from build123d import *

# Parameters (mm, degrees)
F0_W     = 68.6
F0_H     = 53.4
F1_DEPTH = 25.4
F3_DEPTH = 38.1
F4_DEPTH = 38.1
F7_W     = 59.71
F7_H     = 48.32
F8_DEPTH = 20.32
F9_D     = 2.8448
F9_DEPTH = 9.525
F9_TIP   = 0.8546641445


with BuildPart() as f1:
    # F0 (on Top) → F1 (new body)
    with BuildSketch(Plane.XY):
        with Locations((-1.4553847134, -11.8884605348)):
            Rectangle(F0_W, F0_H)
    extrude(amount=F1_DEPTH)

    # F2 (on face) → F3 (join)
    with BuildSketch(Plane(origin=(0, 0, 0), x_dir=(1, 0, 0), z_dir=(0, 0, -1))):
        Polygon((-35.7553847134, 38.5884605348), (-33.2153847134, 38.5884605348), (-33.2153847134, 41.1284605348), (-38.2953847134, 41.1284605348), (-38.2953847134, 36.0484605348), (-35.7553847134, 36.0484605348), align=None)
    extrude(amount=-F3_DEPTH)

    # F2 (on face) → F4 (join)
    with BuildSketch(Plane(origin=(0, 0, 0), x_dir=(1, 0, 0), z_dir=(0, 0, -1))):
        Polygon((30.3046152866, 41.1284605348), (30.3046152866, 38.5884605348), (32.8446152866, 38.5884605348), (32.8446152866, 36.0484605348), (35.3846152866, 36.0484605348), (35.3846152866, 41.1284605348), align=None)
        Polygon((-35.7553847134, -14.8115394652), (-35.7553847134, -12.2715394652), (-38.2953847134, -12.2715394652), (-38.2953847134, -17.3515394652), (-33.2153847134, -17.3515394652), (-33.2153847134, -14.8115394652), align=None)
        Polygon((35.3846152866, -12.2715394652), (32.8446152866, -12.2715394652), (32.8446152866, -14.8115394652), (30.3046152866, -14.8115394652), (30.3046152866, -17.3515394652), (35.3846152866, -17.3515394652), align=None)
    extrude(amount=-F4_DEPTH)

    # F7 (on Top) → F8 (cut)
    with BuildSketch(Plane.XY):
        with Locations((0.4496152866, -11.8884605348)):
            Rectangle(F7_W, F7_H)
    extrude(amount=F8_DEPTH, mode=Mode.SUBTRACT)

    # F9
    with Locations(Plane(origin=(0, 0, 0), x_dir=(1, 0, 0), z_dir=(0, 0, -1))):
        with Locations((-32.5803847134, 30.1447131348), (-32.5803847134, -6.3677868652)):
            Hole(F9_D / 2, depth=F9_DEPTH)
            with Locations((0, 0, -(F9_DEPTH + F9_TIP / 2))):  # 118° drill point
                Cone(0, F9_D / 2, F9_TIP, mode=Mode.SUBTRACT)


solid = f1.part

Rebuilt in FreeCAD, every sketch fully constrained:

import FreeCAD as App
import Part
import Sketcher

V = App.Vector
Q = App.Units.Quantity


def add_polygon(sketch, points):
    """Adds a closed chain of lines whose ends are joined by coincident constraints."""
    first, n = sketch.GeometryCount, len(points)
    for a, b in zip(points, points[1:] + points[:1]):
        sketch.addGeometry(Part.LineSegment(App.Vector(*a, 0), App.Vector(*b, 0)), False)
    for i in range(n):
        sketch.addConstraint(Sketcher.Constraint("Coincident", first + i, 2, first + (i + 1) % n, 1))

doc = App.newDocument("Part")
body = doc.addObject("PartDesign::Body", "Body")

sketch1 = body.newObject("Sketcher::SketchObject", "Sketch")
sketch1.AttachmentSupport = (doc.getObject("XY_Plane"), [""])
sketch1.MapMode = "FlatFace"
add_polygon(sketch1, [(-35.755385, 14.811539), (-35.755385, -38.588461), (32.844615, -38.588461), (32.844615, 14.811539)])
sketch1.addConstraint([
    Sketcher.Constraint("Vertical", 0),
    Sketcher.Constraint("Horizontal", 1),
    Sketcher.Constraint("Vertical", 2),
    Sketcher.Constraint("Horizontal", 3),
    Sketcher.Constraint("DistanceX", 1, 1, 1, 2, 68.6),
    Sketcher.Constraint("DistanceY", 0, 2, 0, 1, 53.4),
    Sketcher.Constraint("DistanceY", 0, 2, -1, 1, 38.588461),
    Sketcher.Constraint("DistanceX", 0, 2, -1, 1, 35.755385),
])
pad1 = body.newObject("PartDesign::Pad", "Pad")
pad1.Profile = sketch1
pad1.Length = Q("1 in")

sketch2 = body.newObject("Sketcher::SketchObject", "Sketch001")
sketch2.AttachmentSupport = (doc.getObject("XY_Plane"), [""])
sketch2.MapMode = "FlatFace"
add_polygon(sketch2, [(-35.755385, -38.588461), (-33.215385, -38.588461), (-33.215385, -41.128461), (-38.295385, -41.128461), (-38.295385, -36.048461), (-35.755385, -36.048461)])
sketch2.addConstraint([
    Sketcher.Constraint("Horizontal", 0),
    Sketcher.Constraint("Vertical", 1),
    Sketcher.Constraint("Horizontal", 2),
    Sketcher.Constraint("Vertical", 3),
    Sketcher.Constraint("Horizontal", 4),
    Sketcher.Constraint("Vertical", 5),
    Sketcher.Constraint("Equal", 0, 4),
    Sketcher.Constraint("Equal", 4, 1),
    Sketcher.Constraint("Equal", 2, 3),
    Sketcher.Constraint("DistanceX", 0, 1, 0, 2, Q("0.1 in")),
    Sketcher.Constraint("DistanceY", 0, 2, -1, 1, 38.588461),
    Sketcher.Constraint("DistanceX", 0, 2, -1, 1, 33.215385),
])
pad2 = body.newObject("PartDesign::Pad", "Pad001")
pad2.Profile = sketch2
pad2.Length = Q("1.5 in")

sketch3 = body.newObject("Sketcher::SketchObject", "Sketch002")
sketch3.AttachmentSupport = (doc.getObject("XY_Plane"), [""])
sketch3.MapMode = "FlatFace"
add_polygon(sketch3, [(30.304615, -41.128461), (30.304615, -38.588461), (32.844615, -38.588461), (32.844615, -36.048461), (35.384615, -36.048461), (35.384615, -41.128461)])
add_polygon(sketch3, [(-35.755385, 14.811539), (-35.755385, 12.271539), (-38.295385, 12.271539), (-38.295385, 17.351539), (-33.215385, 17.351539), (-33.215385, 14.811539)])
add_polygon(sketch3, [(35.384615, 12.271539), (32.844615, 12.271539), (32.844615, 14.811539), (30.304615, 14.811539), (30.304615, 17.351539), (35.384615, 17.351539)])
sketch3.addConstraint([
    Sketcher.Constraint("Vertical", 0),
    Sketcher.Constraint("Horizontal", 1),
    Sketcher.Constraint("Vertical", 2),
    Sketcher.Constraint("Horizontal", 3),
    Sketcher.Constraint("Vertical", 4),
    Sketcher.Constraint("Horizontal", 5),
    Sketcher.Constraint("Vertical", 6),
    Sketcher.Constraint("Horizontal", 7),
    Sketcher.Constraint("Vertical", 8),
    Sketcher.Constraint("Horizontal", 9),
    Sketcher.Constraint("Vertical", 10),
    Sketcher.Constraint("Horizontal", 11),
    Sketcher.Constraint("Horizontal", 12),
    Sketcher.Constraint("Vertical", 13),
    Sketcher.Constraint("Horizontal", 14),
    Sketcher.Constraint("Vertical", 15),
    Sketcher.Constraint("Horizontal", 16),
    Sketcher.Constraint("Vertical", 17),
    Sketcher.Constraint("Horizontal", 7, 2, 12, 2),
    Sketcher.Constraint("Horizontal", 11, 2, 13, 2),
    Sketcher.Constraint("Horizontal", 9, 2, 15, 2),
    Sketcher.Constraint("Vertical", 2, 2, 12, 2),
    Sketcher.Constraint("Vertical", 5, 2, 14, 2),
    Sketcher.Constraint("Vertical", 4, 2, 16, 2),
    Sketcher.Constraint("Equal", 1, 3),
    Sketcher.Constraint("Equal", 3, 7),
    Sketcher.Constraint("Equal", 5, 9),
    Sketcher.Constraint("Equal", 14, 0),
    Sketcher.Constraint("Equal", 0, 2),
    Sketcher.Constraint("Equal", 2, 6),
    Sketcher.Constraint("Equal", 4, 8),
    Sketcher.Constraint("DistanceX", 1, 1, 1, 2, Q("0.1 in")),
    Sketcher.Constraint("DistanceX", 6, 2, 0, 2, 66.06),
    Sketcher.Constraint("DistanceY", 0, 2, 6, 2, 50.86),
    Sketcher.Constraint("DistanceY", 0, 2, -1, 1, 38.588461),
    Sketcher.Constraint("DistanceX", -1, 1, 0, 2, 30.304615),
])
pad3 = body.newObject("PartDesign::Pad", "Pad002")
pad3.Profile = sketch3
pad3.Length = Q("1.5 in")

sketch4 = body.newObject("Sketcher::SketchObject", "Sketch003")
sketch4.AttachmentSupport = (doc.getObject("XY_Plane"), [""])
sketch4.MapMode = "FlatFace"
add_polygon(sketch4, [(-29.405385, 12.271539), (-29.405385, -36.048461), (30.304615, -36.048461), (30.304615, 12.271539)])
sketch4.addConstraint([
    Sketcher.Constraint("Vertical", 0),
    Sketcher.Constraint("Horizontal", 1),
    Sketcher.Constraint("Vertical", 2),
    Sketcher.Constraint("Horizontal", 3),
    Sketcher.Constraint("DistanceX", 1, 1, 1, 2, 59.71),
    Sketcher.Constraint("DistanceY", 0, 2, 0, 1, 48.32),
    Sketcher.Constraint("DistanceY", 0, 2, -1, 1, 36.048461),
    Sketcher.Constraint("DistanceX", 0, 2, -1, 1, 29.405385),
])
pocket1 = body.newObject("PartDesign::Pocket", "Pocket")
pocket1.Profile = sketch4
pocket1.Length = Q("0.8 in")
pocket1.Reversed = True

sketch5 = body.newObject("Sketcher::SketchObject", "Sketch004")
sketch5.AttachmentSupport = (doc.getObject("XY_Plane"), [""])
sketch5.MapMode = "FlatFace"
sketch5.addGeometry([
    Part.Circle(V(-32.580385, -30.144713, 0), V(0, 0, 1), 1.4224),
    Part.Circle(V(-32.580385, 6.367787, 0), V(0, 0, 1), 1.4224),
], False)
sketch5.addConstraint([
    Sketcher.Constraint("Equal", 0, 1),
    Sketcher.Constraint("Vertical", 0, 3, 1, 3),
    Sketcher.Constraint("Diameter", 0, Q("0.112 in")),
    Sketcher.Constraint("DistanceY", 0, 3, 1, 3, Q("1.4375 in")),
    Sketcher.Constraint("DistanceX", 0, 3, -1, 1, 32.580385),
    Sketcher.Constraint("DistanceY", 0, 3, -1, 1, 30.144713),
])
doc.recompute()
hole = body.newObject("PartDesign::Hole", "Hole")
hole.Profile = sketch5
hole.ThreadType = "None"
hole.Diameter = Q("0.112 in")
hole.DepthType = "Dimension"
hole.Depth = Q("0.375 in")
hole.DrillPoint = "Angled"
hole.DrillPointAngle = 118
hole.Reversed = True

doc.recompute()
